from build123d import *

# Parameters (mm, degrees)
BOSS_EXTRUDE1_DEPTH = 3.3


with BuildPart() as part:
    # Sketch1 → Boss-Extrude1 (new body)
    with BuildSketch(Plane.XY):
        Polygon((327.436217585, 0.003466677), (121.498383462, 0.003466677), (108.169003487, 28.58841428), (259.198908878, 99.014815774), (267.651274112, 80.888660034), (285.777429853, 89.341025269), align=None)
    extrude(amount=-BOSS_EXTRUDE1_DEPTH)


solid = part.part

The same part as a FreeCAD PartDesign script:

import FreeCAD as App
import Part
import Sketcher
Q = App.Units.Quantity


def add_polygon(sketch, points):
    """Adds a closed chain of lines whose ends are joined by coincident constraints."""
    first, n = sketch.GeometryCount, len(points)
    for a, b in zip(points, points[1:] + points[:1]):
        sketch.addGeometry(Part.LineSegment(App.Vector(*a, 0), App.Vector(*b, 0)), False)
    for i in range(n):
        sketch.addConstraint(Sketcher.Constraint("Coincident", first + i, 2, first + (i + 1) % n, 1))

doc = App.newDocument("Part")
body = doc.addObject("PartDesign::Body", "Body")

sketch1 = body.newObject("Sketcher::SketchObject", "Sketch")
sketch1.AttachmentSupport = (doc.getObject("XY_Plane"), [""])
sketch1.MapMode = "FlatFace"
add_polygon(sketch1, [(121.498383, 0.003467), (327.436218, 0.003467), (285.77743, 89.341025), (267.651274, 80.88866), (259.198909, 99.014816), (108.169003, 28.588414)])
sketch1.addConstraint(Sketcher.Constraint("Horizontal", 0))
sketch1.addConstraint(Sketcher.Constraint("Perpendicular", 1, 2))
sketch1.addConstraint(Sketcher.Constraint("Perpendicular", 2, 3))
sketch1.addConstraint(Sketcher.Constraint("Perpendicular", 3, 4))
sketch1.addConstraint(Sketcher.Constraint("Perpendicular", 4, 5))
sketch1.addConstraint(Sketcher.Constraint("Equal", 2, 3))
sketch1.addConstraint(Sketcher.Constraint("Angle", 1, Q("115 deg")))
sketch1.addConstraint(Sketcher.Constraint("Distance", 2, 20.0))
sketch1.addConstraint(Sketcher.Constraint("Distance", 5, 31.54))
sketch1.addConstraint(Sketcher.Constraint("DistanceY", 4, 2, 3, 2, 70.426401))
sketch1.addConstraint(Sketcher.Constraint("DistanceX", -1, 1, 1, 2, 285.77743))
sketch1.addConstraint(Sketcher.Constraint("DistanceY", -1, 1, 2, 2, 80.88866))
pad1 = body.newObject("PartDesign::Pad", "Pad")
pad1.Profile = sketch1
pad1.Length = 3.3
pad1.Reversed = True

doc.recompute()
